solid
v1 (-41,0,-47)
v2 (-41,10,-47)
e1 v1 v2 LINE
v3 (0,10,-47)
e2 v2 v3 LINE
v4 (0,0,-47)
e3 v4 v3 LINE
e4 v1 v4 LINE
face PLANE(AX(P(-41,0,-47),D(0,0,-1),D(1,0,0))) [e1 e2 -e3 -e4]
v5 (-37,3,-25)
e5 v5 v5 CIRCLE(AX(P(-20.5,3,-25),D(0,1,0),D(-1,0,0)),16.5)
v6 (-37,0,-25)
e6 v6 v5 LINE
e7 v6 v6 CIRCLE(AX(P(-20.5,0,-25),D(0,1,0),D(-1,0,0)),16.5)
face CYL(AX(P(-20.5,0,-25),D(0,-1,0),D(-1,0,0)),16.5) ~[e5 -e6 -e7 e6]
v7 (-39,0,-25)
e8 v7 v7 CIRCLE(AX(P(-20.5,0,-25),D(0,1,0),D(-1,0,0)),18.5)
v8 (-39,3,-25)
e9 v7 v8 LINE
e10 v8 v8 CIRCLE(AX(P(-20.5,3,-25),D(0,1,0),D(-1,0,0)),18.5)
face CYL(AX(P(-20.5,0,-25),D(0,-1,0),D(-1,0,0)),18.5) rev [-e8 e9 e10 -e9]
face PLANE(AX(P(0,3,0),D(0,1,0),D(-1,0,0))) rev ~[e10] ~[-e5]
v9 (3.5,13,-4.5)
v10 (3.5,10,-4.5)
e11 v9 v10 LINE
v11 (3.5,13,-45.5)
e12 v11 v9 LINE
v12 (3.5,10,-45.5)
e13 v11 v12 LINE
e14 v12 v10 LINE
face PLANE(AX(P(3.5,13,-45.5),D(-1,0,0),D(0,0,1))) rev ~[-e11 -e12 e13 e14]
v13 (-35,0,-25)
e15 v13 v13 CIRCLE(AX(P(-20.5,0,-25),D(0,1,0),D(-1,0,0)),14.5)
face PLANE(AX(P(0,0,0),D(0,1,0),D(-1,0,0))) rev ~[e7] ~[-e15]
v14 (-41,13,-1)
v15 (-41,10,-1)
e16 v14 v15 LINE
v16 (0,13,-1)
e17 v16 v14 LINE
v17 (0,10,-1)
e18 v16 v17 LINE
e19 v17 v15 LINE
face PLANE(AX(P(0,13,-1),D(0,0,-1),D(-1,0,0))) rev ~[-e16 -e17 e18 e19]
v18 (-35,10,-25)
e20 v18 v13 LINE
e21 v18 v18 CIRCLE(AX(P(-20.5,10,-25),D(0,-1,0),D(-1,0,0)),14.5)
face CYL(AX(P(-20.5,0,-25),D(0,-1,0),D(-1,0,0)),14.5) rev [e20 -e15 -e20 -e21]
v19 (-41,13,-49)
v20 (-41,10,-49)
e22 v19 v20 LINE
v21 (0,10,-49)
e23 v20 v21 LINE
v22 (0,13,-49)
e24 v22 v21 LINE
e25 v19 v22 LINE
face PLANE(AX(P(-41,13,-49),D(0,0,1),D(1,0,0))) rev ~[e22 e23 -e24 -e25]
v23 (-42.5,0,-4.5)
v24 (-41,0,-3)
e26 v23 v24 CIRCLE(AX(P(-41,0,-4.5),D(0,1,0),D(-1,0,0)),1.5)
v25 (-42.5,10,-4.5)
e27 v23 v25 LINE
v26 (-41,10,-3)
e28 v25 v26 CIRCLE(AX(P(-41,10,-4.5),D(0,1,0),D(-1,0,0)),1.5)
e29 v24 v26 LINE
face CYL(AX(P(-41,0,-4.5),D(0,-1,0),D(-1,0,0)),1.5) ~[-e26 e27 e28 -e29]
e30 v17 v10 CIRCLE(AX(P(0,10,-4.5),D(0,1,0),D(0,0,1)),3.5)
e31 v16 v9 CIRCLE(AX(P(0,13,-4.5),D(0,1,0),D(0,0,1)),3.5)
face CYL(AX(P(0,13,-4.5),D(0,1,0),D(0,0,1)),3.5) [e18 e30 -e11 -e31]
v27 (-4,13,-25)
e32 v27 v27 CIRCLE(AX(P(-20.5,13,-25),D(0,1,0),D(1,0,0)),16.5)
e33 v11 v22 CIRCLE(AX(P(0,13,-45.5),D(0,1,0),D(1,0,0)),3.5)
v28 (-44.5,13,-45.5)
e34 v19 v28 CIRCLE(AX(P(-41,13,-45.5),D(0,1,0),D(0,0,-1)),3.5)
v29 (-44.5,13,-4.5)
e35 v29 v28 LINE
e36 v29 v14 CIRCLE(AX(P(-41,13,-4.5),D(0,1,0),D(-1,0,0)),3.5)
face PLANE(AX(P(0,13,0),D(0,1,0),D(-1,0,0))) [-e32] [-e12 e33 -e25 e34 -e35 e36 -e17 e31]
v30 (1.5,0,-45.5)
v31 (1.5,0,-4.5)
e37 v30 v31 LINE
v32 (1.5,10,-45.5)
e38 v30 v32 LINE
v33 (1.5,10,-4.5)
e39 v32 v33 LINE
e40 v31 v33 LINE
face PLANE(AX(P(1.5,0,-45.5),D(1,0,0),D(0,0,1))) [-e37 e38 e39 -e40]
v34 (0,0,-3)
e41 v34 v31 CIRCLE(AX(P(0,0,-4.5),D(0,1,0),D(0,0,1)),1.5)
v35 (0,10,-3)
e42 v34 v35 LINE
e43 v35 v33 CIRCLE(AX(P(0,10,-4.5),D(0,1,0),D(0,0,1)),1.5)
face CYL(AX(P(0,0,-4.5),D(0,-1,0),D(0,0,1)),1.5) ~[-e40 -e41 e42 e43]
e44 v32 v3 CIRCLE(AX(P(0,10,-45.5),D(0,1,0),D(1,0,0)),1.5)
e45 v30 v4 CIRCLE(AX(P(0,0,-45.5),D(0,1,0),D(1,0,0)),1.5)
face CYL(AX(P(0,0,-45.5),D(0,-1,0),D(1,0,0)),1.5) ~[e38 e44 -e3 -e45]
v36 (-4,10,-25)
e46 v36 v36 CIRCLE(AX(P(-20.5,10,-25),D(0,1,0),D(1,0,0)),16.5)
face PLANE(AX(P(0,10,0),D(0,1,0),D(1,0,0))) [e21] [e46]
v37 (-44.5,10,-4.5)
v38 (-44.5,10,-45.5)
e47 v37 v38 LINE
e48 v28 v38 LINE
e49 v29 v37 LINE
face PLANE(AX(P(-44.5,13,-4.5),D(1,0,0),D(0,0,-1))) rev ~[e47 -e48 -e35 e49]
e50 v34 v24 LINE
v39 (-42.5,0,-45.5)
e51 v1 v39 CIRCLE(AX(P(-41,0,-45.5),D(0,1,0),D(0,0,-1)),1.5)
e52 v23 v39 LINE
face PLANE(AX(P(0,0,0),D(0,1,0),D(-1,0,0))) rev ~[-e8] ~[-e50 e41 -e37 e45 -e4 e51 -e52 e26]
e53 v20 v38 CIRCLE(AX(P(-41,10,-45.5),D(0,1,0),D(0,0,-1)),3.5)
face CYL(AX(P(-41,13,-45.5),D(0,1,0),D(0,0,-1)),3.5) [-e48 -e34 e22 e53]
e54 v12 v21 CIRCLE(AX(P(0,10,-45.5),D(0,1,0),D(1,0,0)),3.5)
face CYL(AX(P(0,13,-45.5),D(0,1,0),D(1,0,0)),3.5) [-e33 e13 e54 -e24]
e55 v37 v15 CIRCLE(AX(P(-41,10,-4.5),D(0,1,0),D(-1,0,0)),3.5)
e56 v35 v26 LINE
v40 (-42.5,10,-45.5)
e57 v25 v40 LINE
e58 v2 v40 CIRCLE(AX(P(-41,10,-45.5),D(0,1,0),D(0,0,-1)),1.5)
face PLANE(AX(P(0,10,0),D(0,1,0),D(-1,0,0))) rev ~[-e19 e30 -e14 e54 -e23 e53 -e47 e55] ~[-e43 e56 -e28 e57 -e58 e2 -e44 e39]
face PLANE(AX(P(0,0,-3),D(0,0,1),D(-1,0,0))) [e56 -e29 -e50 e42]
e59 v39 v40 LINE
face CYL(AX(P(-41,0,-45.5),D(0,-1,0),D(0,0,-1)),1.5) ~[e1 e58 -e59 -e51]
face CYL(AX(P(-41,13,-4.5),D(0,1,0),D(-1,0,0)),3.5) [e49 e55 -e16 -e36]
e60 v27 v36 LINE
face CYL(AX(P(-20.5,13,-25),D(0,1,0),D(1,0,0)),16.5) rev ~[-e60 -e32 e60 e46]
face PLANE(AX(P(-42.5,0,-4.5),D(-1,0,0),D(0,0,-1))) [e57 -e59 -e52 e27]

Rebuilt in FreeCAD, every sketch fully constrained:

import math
import FreeCAD as App
import Part
import Sketcher
Q = App.Units.Quantity

doc = App.newDocument("Part")
body = doc.addObject("PartDesign::Body", "Body")

sketch1 = body.newObject("Sketcher::SketchObject", "Sketch")
sketch1.AttachmentSupport = (doc.getObject("XZ_Plane"), [""])
sketch1.MapMode = "FlatFace"
sketch1.addGeometry([
    Part.LineSegment(App.Vector(1.5, -4.5, 0), App.Vector(1.5, -45.5, 0)),
    Part.ArcOfCircle(Part.Circle(App.Vector(0, -45.5, 0), App.Vector(0, 0, 1), 1.5), math.radians(-90), math.radians(0)),
    Part.LineSegment(App.Vector(0, -47, 0), App.Vector(-41, -47, 0)),
    Part.ArcOfCircle(Part.Circle(App.Vector(-41, -45.5, 0), App.Vector(0, 0, 1), 1.5), math.radians(180), math.radians(270)),
    Part.LineSegment(App.Vector(-42.5, -45.5, 0), App.Vector(-42.5, -4.5, 0)),
    Part.ArcOfCircle(Part.Circle(App.Vector(-41, -4.5, 0), App.Vector(0, 0, 1), 1.5), math.radians(90), math.radians(180)),
    Part.LineSegment(App.Vector(-41, -3, 0), App.Vector(0, -3, 0)),
    Part.ArcOfCircle(Part.Circle(App.Vector(0, -4.5, 0), App.Vector(0, 0, 1), 1.5), math.radians(0), math.radians(90)),
], False)
sketch1.addConstraint([
    Sketcher.Constraint("Tangent", 0, 2, 1, 2),
    Sketcher.Constraint("Tangent", 1, 1, 2, 1),
    Sketcher.Constraint("Tangent", 2, 2, 3, 2),
    Sketcher.Constraint("Tangent", 3, 1, 4, 1),
    Sketcher.Constraint("Tangent", 4, 2, 5, 2),
    Sketcher.Constraint("Tangent", 5, 1, 6, 1),
    Sketcher.Constraint("Tangent", 6, 2, 7, 2),
    Sketcher.Constraint("Tangent", 7, 1, 0, 1),
    Sketcher.Constraint("Vertical", 0),
    Sketcher.Constraint("Horizontal", 2),
    Sketcher.Constraint("Vertical", 4),
    Sketcher.Constraint("Horizontal", 6),
    Sketcher.Constraint("Equal", 1, 3),
    Sketcher.Constraint("Equal", 3, 5),
    Sketcher.Constraint("Equal", 5, 7),
    Sketcher.Constraint("PointOnObject", 1, 3, -2),
    Sketcher.Constraint("Equal", 6, 0),
    Sketcher.Constraint("Radius", 1, Q("1.5 mm")),
    Sketcher.Constraint("DistanceX", 2, 2, 2, 1, Q("41 mm")),
    Sketcher.Constraint("DistanceY", 1, 1, -1, 1, Q("47 mm")),
])
pad1 = body.newObject("PartDesign::Pad", "Pad")
pad1.Profile = sketch1
pad1.Length = 10
pad1.Reversed = True

sketch2 = body.newObject("Sketcher::SketchObject", "Sketch001")
sketch2.AttachmentSupport = (doc.getObject("XZ_Plane"), [""])
sketch2.MapMode = "FlatFace"
sketch2.addGeometry([
    Part.Circle(App.Vector(-20, -25, 0), App.Vector(0, 0, 1), 18),
    Part.Circle(App.Vector(-20, -25, 0), App.Vector(0, 0, 1), 16),
    Part.Circle(App.Vector(-20, -25, 0), App.Vector(0, 0, 1), 14),
    Part.Circle(App.Vector(-20, -25, 0), App.Vector(0, 0, 1), 14),
], False)
sketch2.addConstraint([
    Sketcher.Constraint("Coincident", 1, 3, 0, 3),
    Sketcher.Constraint("Coincident", 2, 3, 0, 3),
    Sketcher.Constraint("Coincident", 3, 3, 0, 3),
    Sketcher.Constraint("Diameter", 0, Q("37 mm")),
    Sketcher.Constraint("Diameter", 1, Q("33 mm")),
    Sketcher.Constraint("Diameter", 2, Q("29 mm")),
    Sketcher.Constraint("Diameter", 3, Q("27 mm")),
    Sketcher.Constraint("DistanceY", 0, 3, -1, 1, Q("25 mm")),
    Sketcher.Constraint("DistanceX", 0, 3, -1, 1, Q("20.5 mm")),
])
pocket1 = body.newObject("PartDesign::Pocket", "Pocket")
pocket1.Profile = sketch2
pocket1.Length = 3

sketch3 = body.newObject("Sketcher::SketchObject", "Sketch002")
sketch3.AttachmentSupport = (doc.getObject("XZ_Plane"), [""])
sketch3.MapMode = "FlatFace"
sketch3.addGeometry(Part.Circle(App.Vector(-20, -25, 0), App.Vector(0, 0, 1), 14), False)
sketch3.addConstraint([
    Sketcher.Constraint("Diameter", 0, Q("29 mm")),
    Sketcher.Constraint("DistanceY", 0, 3, -1, 1, Q("25 mm")),
    Sketcher.Constraint("DistanceX", 0, 3, -1, 1, Q("20.5 mm")),
])
pocket2 = body.newObject("PartDesign::Pocket", "Pocket001")
pocket2.Profile = sketch3
pocket2.Length = 14.75

sketch4 = body.newObject("Sketcher::SketchObject", "Sketch003")
sketch4.AttachmentSupport = (doc.getObject("XZ_Plane"), [""])
sketch4.MapMode = "FlatFace"
sketch4.addGeometry([
    Part.LineSegment(App.Vector(0, -50, 0), App.Vector(-41, -50, 0)),
    Part.ArcOfCircle(Part.Circle(App.Vector(-41, -45.5, 0), App.Vector(0, 0, 1), 4.5), math.radians(180), math.radians(270)),
    Part.LineSegment(App.Vector(-45.5, -45.5, 0), App.Vector(-45.5, -4.5, 0)),
    Part.ArcOfCircle(Part.Circle(App.Vector(-41, -4.5, 0), App.Vector(0, 0, 1), 4.5), math.radians(90), math.radians(180)),
    Part.LineSegment(App.Vector(-41, 0, 0), App.Vector(0, 0, 0)),
    Part.ArcOfCircle(Part.Circle(App.Vector(0, -4.5, 0), App.Vector(0, 0, 1), 4.5), math.radians(0), math.radians(90)),
    Part.LineSegment(App.Vector(4.5, -4.5, 0), App.Vector(4.5, -45.5, 0)),
    Part.ArcOfCircle(Part.Circle(App.Vector(0, -45.5, 0), App.Vector(0, 0, 1), 4.5), math.radians(-90), math.radians(0)),
    Part.ArcOfCircle(Part.Circle(App.Vector(0, -45.5, 0), App.Vector(0, 0, 1), 1.5), math.radians(-90), math.radians(0)),
    Part.LineSegment(App.Vector(1.5, -45.5, 0), App.Vector(1.5, -4.5, 0)),
    Part.ArcOfCircle(Part.Circle(App.Vector(0, -4.5, 0), App.Vector(0, 0, 1), 1.5), math.radians(0), math.radians(90)),
    Part.LineSegment(App.Vector(0, -3, 0), App.Vector(-41, -3, 0)),
    Part.ArcOfCircle(Part.Circle(App.Vector(-41, -4.5, 0), App.Vector(0, 0, 1), 1.5), math.radians(90), math.radians(180)),
    Part.LineSegment(App.Vector(-42.5, -4.5, 0), App.Vector(-42.5, -45.5, 0)),
    Part.ArcOfCircle(Part.Circle(App.Vector(-41, -45.5, 0), App.Vector(0, 0, 1), 1.5), math.radians(180), math.radians(270)),
    Part.LineSegment(App.Vector(-41, -47, 0), App.Vector(0, -47, 0)),
], False)
sketch4.addConstraint([
    Sketcher.Constraint("Tangent", 0, 2, 1, 2),
    Sketcher.Constraint("Tangent", 1, 1, 2, 1),
    Sketcher.Constraint("Tangent", 2, 2, 3, 2),
    Sketcher.Constraint("Tangent", 3, 1, 4, 1),
    Sketcher.Constraint("Tangent", 4, 2, 5, 2),
    Sketcher.Constraint("Tangent", 5, 1, 6, 1),
    Sketcher.Constraint("Tangent", 6, 2, 7, 2),
    Sketcher.Constraint("Tangent", 7, 1, 0, 1),
    Sketcher.Constraint("Tangent", 8, 2, 9, 1),
    Sketcher.Constraint("Tangent", 9, 2, 10, 1),
    Sketcher.Constraint("Tangent", 10, 2, 11, 1),
    Sketcher.Constraint("Tangent", 11, 2, 12, 1),
    Sketcher.Constraint("Tangent", 12, 2, 13, 1),
    Sketcher.Constraint("Tangent", 13, 2, 14, 1),
    Sketcher.Constraint("Tangent", 14, 2, 15, 1),
    Sketcher.Constraint("Tangent", 15, 2, 8, 1),
    Sketcher.Constraint("Horizontal", 0),
    Sketcher.Constraint("Vertical", 2),
    Sketcher.Constraint("Horizontal", 4),
    Sketcher.Constraint("Vertical", 6),
    Sketcher.Constraint("Vertical", 9),
    Sketcher.Constraint("Horizontal", 11),
    Sketcher.Constraint("Vertical", 13),
    Sketcher.Constraint("Horizontal", 15),
    Sketcher.Constraint("Coincident", 4, 2, -1, 1),
    Sketcher.Constraint("Coincident", 8, 3, 7, 3),
    Sketcher.Constraint("Coincident", 10, 3, 5, 3),
    Sketcher.Constraint("Coincident", 12, 3, 3, 3),
    Sketcher.Constraint("Equal", 1, 3),
    Sketcher.Constraint("Equal", 3, 5),
    Sketcher.Constraint("Equal", 5, 7),
    Sketcher.Constraint("Equal", 12, 14),
    Sketcher.Constraint("Equal", 15, 2),
    Sketcher.Constraint("Radius", 1, Q("4.5 mm")),
    Sketcher.Constraint("Radius", 8, Q("1.5 mm")),
    Sketcher.Constraint("DistanceX", 0, 2, 0, 1, Q("41 mm")),
])
pad2 = body.newObject("PartDesign::Pad", "Pad001")
pad2.Profile = sketch4
pad2.Length = 13
pad2.Reversed = True

sketch5 = body.newObject("Sketcher::SketchObject", "Sketch004")
sketch5.AttachmentSupport = (doc.getObject("XZ_Plane"), [""])
sketch5.MapMode = "FlatFace"
sketch5.addGeometry([
    Part.LineSegment(App.Vector(1.5, -4.5, 0), App.Vector(1.5, -45.5, 0)),
    Part.ArcOfCircle(Part.Circle(App.Vector(0, -45.5, 0), App.Vector(0, 0, 1), 1.5), math.radians(-90), math.radians(0)),
    Part.LineSegment(App.Vector(0, -47, 0), App.Vector(-41, -47, 0)),
    Part.ArcOfCircle(Part.Circle(App.Vector(-41, -45.5, 0), App.Vector(0, 0, 1), 1.5), math.radians(180), math.radians(270)),
    Part.LineSegment(App.Vector(-42.5, -45.5, 0), App.Vector(-42.5, -4.5, 0)),
    Part.ArcOfCircle(Part.Circle(App.Vector(-41, -4.5, 0), App.Vector(0, 0, 1), 1.5), math.radians(90), math.radians(180)),
    Part.LineSegment(App.Vector(-41, -3, 0), App.Vector(0, -3, 0)),
    Part.ArcOfCircle(Part.Circle(App.Vector(0, -4.5, 0), App.Vector(0, 0, 1), 1.5), math.radians(0), math.radians(90)),
], False)
sketch5.addConstraint([
    Sketcher.Constraint("Tangent", 0, 2, 1, 2),
    Sketcher.Constraint("Tangent", 1, 1, 2, 1),
    Sketcher.Constraint("Tangent", 2, 2, 3, 2),
    Sketcher.Constraint("Tangent", 3, 1, 4, 1),
    Sketcher.Constraint("Tangent", 4, 2, 5, 2),
    Sketcher.Constraint("Tangent", 5, 1, 6, 1),
    Sketcher.Constraint("Tangent", 6, 2, 7, 2),
    Sketcher.Constraint("Tangent", 7, 1, 0, 1),
    Sketcher.Constraint("Vertical", 0),
    Sketcher.Constraint("Horizontal", 2),
    Sketcher.Constraint("Vertical", 4),
    Sketcher.Constraint("Horizontal", 6),
    Sketcher.Constraint("Equal", 1, 3),
    Sketcher.Constraint("Equal", 3, 5),
    Sketcher.Constraint("Equal", 5, 7),
    Sketcher.Constraint("PointOnObject", 1, 3, -2),
    Sketcher.Constraint("Equal", 6, 0),
    Sketcher.Constraint("Radius", 1, Q("1.5 mm")),
    Sketcher.Constraint("DistanceX", 2, 2, 2, 1, Q("41 mm")),
    Sketcher.Constraint("DistanceY", 1, 1, -1, 1, Q("47 mm")),
])
pad3 = body.newObject("PartDesign::Pad", "Pad002")
pad3.Profile = sketch5
pad3.Length = 13
pad3.Reversed = True

sketch6 = body.newObject("Sketcher::SketchObject", "Sketch005")
sketch6.AttachmentSupport = (doc.getObject("XZ_Plane"), [""])
sketch6.MapMode = "FlatFace"
sketch6.addGeometry([
    Part.LineSegment(App.Vector(0, -50, 0), App.Vector(-41, -50, 0)),
    Part.ArcOfCircle(Part.Circle(App.Vector(-41, -45.5, 0), App.Vector(0, 0, 1), 4.5), math.radians(180), math.radians(270)),
    Part.LineSegment(App.Vector(-45.5, -45.5, 0), App.Vector(-45.5, -4.5, 0)),
    Part.ArcOfCircle(Part.Circle(App.Vector(-41, -4.5, 0), App.Vector(0, 0, 1), 4.5), math.radians(90), math.radians(180)),
    Part.LineSegment(App.Vector(-41, 0, 0), App.Vector(0, 0, 0)),
    Part.ArcOfCircle(Part.Circle(App.Vector(0, -4.5, 0), App.Vector(0, 0, 1), 4.5), math.radians(0), math.radians(90)),
    Part.LineSegment(App.Vector(4.5, -4.5, 0), App.Vector(4.5, -45.5, 0)),
    Part.ArcOfCircle(Part.Circle(App.Vector(0, -45.5, 0), App.Vector(0, 0, 1), 4.5), math.radians(-90), math.radians(0)),
    Part.ArcOfCircle(Part.Circle(App.Vector(0, -45.5, 0), App.Vector(0, 0, 1), 1.5), math.radians(-90), math.radians(0)),
    Part.LineSegment(App.Vector(1.5, -45.5, 0), App.Vector(1.5, -4.5, 0)),
    Part.ArcOfCircle(Part.Circle(App.Vector(0, -4.5, 0), App.Vector(0, 0, 1), 1.5), math.radians(0), math.radians(90)),
    Part.LineSegment(App.Vector(0, -3, 0), App.Vector(-41, -3, 0)),
    Part.ArcOfCircle(Part.Circle(App.Vector(-41, -4.5, 0), App.Vector(0, 0, 1), 1.5), math.radians(90), math.radians(180)),
    Part.LineSegment(App.Vector(-42.5, -4.5, 0), App.Vector(-42.5, -45.5, 0)),
    Part.ArcOfCircle(Part.Circle(App.Vector(-41, -45.5, 0), App.Vector(0, 0, 1), 1.5), math.radians(180), math.radians(270)),
    Part.LineSegment(App.Vector(-41, -47, 0), App.Vector(0, -47, 0)),
], False)
sketch6.addConstraint([
    Sketcher.Constraint("Tangent", 0, 2, 1, 2),
    Sketcher.Constraint("Tangent", 1, 1, 2, 1),
    Sketcher.Constraint("Tangent", 2, 2, 3, 2),
    Sketcher.Constraint("Tangent", 3, 1, 4, 1),
    Sketcher.Constraint("Tangent", 4, 2, 5, 2),
    Sketcher.Constraint("Tangent", 5, 1, 6, 1),
    Sketcher.Constraint("Tangent", 6, 2, 7, 2),
    Sketcher.Constraint("Tangent", 7, 1, 0, 1),
    Sketcher.Constraint("Tangent", 8, 2, 9, 1),
    Sketcher.Constraint("Tangent", 9, 2, 10, 1),
    Sketcher.Constraint("Tangent", 10, 2, 11, 1),
    Sketcher.Constraint("Tangent", 11, 2, 12, 1),
    Sketcher.Constraint("Tangent", 12, 2, 13, 1),
    Sketcher.Constraint("Tangent", 13, 2, 14, 1),
    Sketcher.Constraint("Tangent", 14, 2, 15, 1),
    Sketcher.Constraint("Tangent", 15, 2, 8, 1),
    Sketcher.Constraint("Horizontal", 0),
    Sketcher.Constraint("Vertical", 2),
    Sketcher.Constraint("Horizontal", 4),
    Sketcher.Constraint("Vertical", 6),
    Sketcher.Constraint("Vertical", 9),
    Sketcher.Constraint("Horizontal", 11),
    Sketcher.Constraint("Vertical", 13),
    Sketcher.Constraint("Horizontal", 15),
    Sketcher.Constraint("Coincident", 4, 2, -1, 1),
    Sketcher.Constraint("Coincident", 8, 3, 7, 3),
    Sketcher.Constraint("Coincident", 10, 3, 5, 3),
    Sketcher.Constraint("Coincident", 12, 3, 3, 3),
    Sketcher.Constraint("Equal", 1, 3),
    Sketcher.Constraint("Equal", 3, 5),
    Sketcher.Constraint("Equal", 5, 7),
    Sketcher.Constraint("Equal", 12, 14),
    Sketcher.Constraint("Equal", 15, 2),
    Sketcher.Constraint("Radius", 1, Q("4.5 mm")),
    Sketcher.Constraint("Radius", 8, Q("1.5 mm")),
    Sketcher.Constraint("DistanceX", 0, 2, 0, 1, Q("41 mm")),
])
pocket3 = body.newObject("PartDesign::Pocket", "Pocket002")
pocket3.Profile = sketch6
pocket3.Length = 10

sketch7 = body.newObject("Sketcher::SketchObject", "Sketch006")
sketch7.AttachmentSupport = (doc.getObject("XZ_Plane"), [""])
sketch7.MapMode = "FlatFace"
sketch7.addGeometry([
    Part.Circle(App.Vector(-20, -25, 0), App.Vector(0, 0, 1), 18),
    Part.Circle(App.Vector(-20, -25, 0), App.Vector(0, 0, 1), 16),
    Part.Circle(App.Vector(-20, -25, 0), App.Vector(0, 0, 1), 14),
    Part.Circle(App.Vector(-20, -25, 0), App.Vector(0, 0, 1), 14),
], False)
sketch7.addConstraint([
    Sketcher.Constraint("Coincident", 1, 3, 0, 3),
    Sketcher.Constraint("Coincident", 2, 3, 0, 3),
    Sketcher.Constraint("Coincident", 3, 3, 0, 3),
    Sketcher.Constraint("Diameter", 0, Q("37 mm")),
    Sketcher.Constraint("Diameter", 1, Q("33 mm")),
    Sketcher.Constraint("Diameter", 2, Q("29 mm")),
    Sketcher.Constraint("Diameter", 3, Q("27 mm")),
    Sketcher.Constraint("DistanceY", 0, 3, -1, 1, Q("25 mm")),
    Sketcher.Constraint("DistanceX", 0, 3, -1, 1, Q("20.5 mm")),
])
pocket4 = body.newObject("PartDesign::Pocket", "Pocket003")
pocket4.Profile = sketch7
pocket4.Length = 3

sketch8 = body.newObject("Sketcher::SketchObject", "Sketch007")
sketch8.AttachmentSupport = (doc.getObject("XZ_Plane"), [""])
sketch8.MapMode = "FlatFace"
sketch8.addGeometry(Part.Circle(App.Vector(-20, -25, 0), App.Vector(0, 0, 1), 14), False)
sketch8.addConstraint([
    Sketcher.Constraint("Diameter", 0, Q("29 mm")),
    Sketcher.Constraint("DistanceY", 0, 3, -1, 1, Q("25 mm")),
    Sketcher.Constraint("DistanceX", 0, 3, -1, 1, Q("20.5 mm")),
])
pocket5 = body.newObject("PartDesign::Pocket", "Pocket004")
pocket5.Profile = sketch8
pocket5.Length = 15

sketch9 = body.newObject("Sketcher::SketchObject", "Sketch008")
sketch9.AttachmentSupport = (doc.getObject("XZ_Plane"), [""])
sketch9.MapMode = "FlatFace"
sketch9.AttachmentOffset = App.Placement(App.Vector(0, 0, -13), App.Rotation())
sketch9.addGeometry([
    Part.Circle(App.Vector(-20, -25, 0), App.Vector(0, 0, 1), 16),
    Part.Circle(App.Vector(-20, -25, 0), App.Vector(0, 0, 1), 14),
], False)
sketch9.addConstraint([
    Sketcher.Constraint("Coincident", 1, 3, 0, 3),
    Sketcher.Constraint("Diameter", 0, Q("33 mm")),
    Sketcher.Constraint("Diameter", 1, Q("29 mm")),
    Sketcher.Constraint("DistanceY", 0, 3, -1, 1, Q("25 mm")),
    Sketcher.Constraint("DistanceX", 0, 3, -1, 1, Q("20.5 mm")),
])
pocket6 = body.newObject("PartDesign::Pocket", "Pocket005")
pocket6.Profile = sketch9
pocket6.Length = 3
pocket6.Reversed = True

sketch10 = body.newObject("Sketcher::SketchObject", "Sketch009")
sketch10.AttachmentSupport = (doc.getObject("XZ_Plane"), [""])
sketch10.MapMode = "FlatFace"
sketch10.AttachmentOffset = App.Placement(App.Vector(0, 0, -13), App.Rotation())
sketch10.addGeometry([
    Part.ArcOfCircle(Part.Circle(App.Vector(-41, -45.5, 0), App.Vector(0, 0, 1), 4.5), math.radians(180), math.radians(270)),
    Part.LineSegment(App.Vector(-45.5, -45.5, 0), App.Vector(-45.5, -4.5, 0)),
    Part.ArcOfCircle(Part.Circle(App.Vector(-41, -4.5, 0), App.Vector(0, 0, 1), 4.5), math.radians(90), math.radians(180)),
    Part.LineSegment(App.Vector(-41, 0, 0), App.Vector(0, 0, 0)),
    Part.ArcOfCircle(Part.Circle(App.Vector(0, -4.5, 0), App.Vector(0, 0, 1), 4.5), math.radians(0), math.radians(90)),
    Part.LineSegment(App.Vector(4.5, -4.5, 0), App.Vector(4.5, -45.5, 0)),
    Part.ArcOfCircle(Part.Circle(App.Vector(0, -45.5, 0), App.Vector(0, 0, 1), 4.5), math.radians(-90), math.radians(0)),
    Part.LineSegment(App.Vector(0, -50, 0), App.Vector(-41, -50, 0)),
    Part.ArcOfCircle(Part.Circle(App.Vector(-41, -45.5, 0), App.Vector(0, 0, 1), 3.5), math.radians(180), math.radians(270)),
    Part.LineSegment(App.Vector(-41, -49, 0), App.Vector(0, -49, 0)),
    Part.ArcOfCircle(Part.Circle(App.Vector(0, -45.5, 0), App.Vector(0, 0, 1), 3.5), math.radians(-90), math.radians(0)),
    Part.LineSegment(App.Vector(3.5, -45.5, 0), App.Vector(3.5, -4.5, 0)),
    Part.ArcOfCircle(Part.Circle(App.Vector(0, -4.5, 0), App.Vector(0, 0, 1), 3.5), math.radians(0), math.radians(90)),
    Part.LineSegment(App.Vector(0, -1, 0), App.Vector(-41, -1, 0)),
    Part.ArcOfCircle(Part.Circle(App.Vector(-41, -4.5, 0), App.Vector(0, 0, 1), 3.5), math.radians(90), math.radians(180)),
    Part.LineSegment(App.Vector(-44.5, -4.5, 0), App.Vector(-44.5, -45.5, 0)),
], False)
sketch10.addConstraint([
    Sketcher.Constraint("Tangent", 0, 1, 1, 1),
    Sketcher.Constraint("Tangent", 1, 2, 2, 2),
    Sketcher.Constraint("Tangent", 2, 1, 3, 1),
    Sketcher.Constraint("Tangent", 3, 2, 4, 2),
    Sketcher.Constraint("Tangent", 4, 1, 5, 1),
    Sketcher.Constraint("Tangent", 5, 2, 6, 2),
    Sketcher.Constraint("Tangent", 6, 1, 7, 1),
    Sketcher.Constraint("Tangent", 7, 2, 0, 2),
    Sketcher.Constraint("Tangent", 8, 2, 9, 1),
    Sketcher.Constraint("Tangent", 9, 2, 10, 1),
    Sketcher.Constraint("Tangent", 10, 2, 11, 1),
    Sketcher.Constraint("Tangent", 11, 2, 12, 1),
    Sketcher.Constraint("Tangent", 12, 2, 13, 1),
    Sketcher.Constraint("Tangent", 13, 2, 14, 1),
    Sketcher.Constraint("Tangent", 14, 2, 15, 1),
    Sketcher.Constraint("Tangent", 15, 2, 8, 1),
    Sketcher.Constraint("Vertical", 1),
    Sketcher.Constraint("Horizontal", 3),
    Sketcher.Constraint("Vertical", 5),
    Sketcher.Constraint("Horizontal", 7),
    Sketcher.Constraint("Horizontal", 9),
    Sketcher.Constraint("Vertical", 11),
    Sketcher.Constraint("Horizontal", 13),
    Sketcher.Constraint("Vertical", 15),
    Sketcher.Constraint("Coincident", 3, 2, -1, 1),
    Sketcher.Constraint("Coincident", 8, 3, 0, 3),
    Sketcher.Constraint("Coincident", 10, 3, 6, 3),
    Sketcher.Constraint("Coincident", 12, 3, 4, 3),
    Sketcher.Constraint("Equal", 0, 2),
    Sketcher.Constraint("Equal", 2, 4),
    Sketcher.Constraint("Equal", 4, 6),
    Sketcher.Constraint("Equal", 12, 14),
    Sketcher.Constraint("Equal", 13, 1),
    Sketcher.Constraint("DistanceY", 12, 2, -1, 1, Q("1 mm")),
    Sketcher.Constraint("Radius", 0, Q("4.5 mm")),
    Sketcher.Constraint("DistanceX", 3, 1, 3, 2, Q("41 mm")),
])
pocket7 = body.newObject("PartDesign::Pocket", "Pocket006")
pocket7.Profile = sketch10
pocket7.Length = 3
pocket7.Reversed = True

doc.recompute()
